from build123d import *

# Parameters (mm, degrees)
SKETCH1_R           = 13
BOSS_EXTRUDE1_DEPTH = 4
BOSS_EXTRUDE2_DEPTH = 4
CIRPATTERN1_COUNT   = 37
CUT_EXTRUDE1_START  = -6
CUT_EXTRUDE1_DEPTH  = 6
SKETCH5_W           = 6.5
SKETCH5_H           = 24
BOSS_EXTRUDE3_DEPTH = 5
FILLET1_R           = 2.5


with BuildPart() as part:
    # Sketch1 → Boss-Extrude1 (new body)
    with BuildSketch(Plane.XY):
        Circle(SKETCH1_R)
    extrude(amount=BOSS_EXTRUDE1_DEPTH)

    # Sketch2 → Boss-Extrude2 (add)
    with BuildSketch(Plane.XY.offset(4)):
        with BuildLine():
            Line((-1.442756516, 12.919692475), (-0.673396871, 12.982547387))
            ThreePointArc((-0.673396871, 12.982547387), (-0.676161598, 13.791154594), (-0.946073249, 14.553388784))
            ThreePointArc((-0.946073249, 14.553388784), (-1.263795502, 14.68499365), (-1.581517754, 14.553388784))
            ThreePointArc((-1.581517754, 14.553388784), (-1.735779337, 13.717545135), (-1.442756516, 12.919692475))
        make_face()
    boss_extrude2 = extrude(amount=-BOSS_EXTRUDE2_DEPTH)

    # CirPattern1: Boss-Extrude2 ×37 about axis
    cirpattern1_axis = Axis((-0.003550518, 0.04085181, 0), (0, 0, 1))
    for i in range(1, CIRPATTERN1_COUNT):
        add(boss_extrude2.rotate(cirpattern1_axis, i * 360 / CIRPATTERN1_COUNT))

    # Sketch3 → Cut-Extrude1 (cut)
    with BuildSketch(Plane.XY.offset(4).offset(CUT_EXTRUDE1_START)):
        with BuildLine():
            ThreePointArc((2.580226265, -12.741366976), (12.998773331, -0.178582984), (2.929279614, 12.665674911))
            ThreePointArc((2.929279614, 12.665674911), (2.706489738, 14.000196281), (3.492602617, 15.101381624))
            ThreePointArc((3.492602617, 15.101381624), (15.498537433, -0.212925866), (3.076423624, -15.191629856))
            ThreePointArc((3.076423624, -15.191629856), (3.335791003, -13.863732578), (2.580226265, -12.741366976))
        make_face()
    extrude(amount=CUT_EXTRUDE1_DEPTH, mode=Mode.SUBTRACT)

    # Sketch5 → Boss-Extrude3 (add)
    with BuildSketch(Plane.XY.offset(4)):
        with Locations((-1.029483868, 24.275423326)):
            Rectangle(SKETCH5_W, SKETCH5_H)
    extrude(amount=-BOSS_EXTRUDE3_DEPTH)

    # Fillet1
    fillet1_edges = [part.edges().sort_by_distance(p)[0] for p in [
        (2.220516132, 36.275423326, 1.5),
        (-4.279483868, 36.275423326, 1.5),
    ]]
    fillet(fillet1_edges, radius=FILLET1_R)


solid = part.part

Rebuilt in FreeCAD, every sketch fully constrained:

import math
import FreeCAD as App
import Part
import Sketcher

V = App.Vector
Q = App.Units.Quantity


def edges_at(feature, points):
    """Names of the edges that pass closest to the given points."""
    edges = feature.Shape.Edges
    near = lambda p: min(range(len(edges)), key=lambda i: edges[i].distToShape(Part.Vertex(*p))[0])
    return sorted({f"Edge{near(p) + 1}" for p in points})


def add_polygon(sketch, points):
    """Adds a closed chain of lines whose ends are joined by coincident constraints."""
    first, n = sketch.GeometryCount, len(points)
    for a, b in zip(points, points[1:] + points[:1]):
        sketch.addGeometry(Part.LineSegment(App.Vector(*a, 0), App.Vector(*b, 0)), False)
    for i in range(n):
        sketch.addConstraint(Sketcher.Constraint("Coincident", first + i, 2, first + (i + 1) % n, 1))

doc = App.newDocument("Part")
body = doc.addObject("PartDesign::Body", "Body")

sketch1 = doc.addObject("Sketcher::SketchObject", "Sketch")
body.addObject(sketch1)
sketch1.AttachmentSupport = (doc.XY_Plane, [""])
sketch1.MapMode = "FlatFace"
sketch1.addGeometry(Part.Circle(V(0, 0, 0), V(0, 0, 1), 13), False)
sketch1.addConstraint([
    Sketcher.Constraint("Coincident", 0, 3, -1, 1),
    Sketcher.Constraint("Diameter", 0, Q("26 mm")),
])
pad1 = doc.addObject("PartDesign::Pad", "Pad")
body.addObject(pad1)
pad1.Profile = sketch1
pad1.Length = 4

sketch2 = doc.addObject("Sketcher::SketchObject", "Sketch001")
body.addObject(sketch2)
sketch2.AttachmentSupport = (doc.XY_Plane, [""])
sketch2.MapMode = "FlatFace"
sketch2.AttachmentOffset = App.Placement(V(0, 0, 4), App.Rotation())
sketch2.addGeometry([
    Part.LineSegment(V(-1.442757, 12.919692, 0), V(-0.673397, 12.982547, 0)),
    Part.ArcOfCircle(Part.Circle(V(-3.052111, 13.378723, 0), V(0, 0, 1), 2.41148), math.radians(-9.455828), math.radians(29.151085)),
    Part.ArcOfCircle(Part.Circle(V(-1.263796, 14.235667, 0), V(0, 0, 1), 0.449327), math.radians(45), math.radians(135)),
    Part.ArcOfCircle(Part.Circle(V(-0.132198, 13.853748, 0), V(0, 0, 1), 1.609355), math.radians(154.231669), math.radians(215.478087)),
], False)
sketch2.addConstraint([
    Sketcher.Constraint("Coincident", 0, 2, 1, 1),
    Sketcher.Constraint("Coincident", 1, 2, 2, 1),
    Sketcher.Constraint("Coincident", 2, 2, 3, 1),
    Sketcher.Constraint("Coincident", 3, 2, 0, 1),
    Sketcher.Constraint("Radius", 1, Q("2.41148 mm")),
    Sketcher.Constraint("Radius", 2, Q("0.449327 mm")),
    Sketcher.Constraint("Radius", 3, Q("1.609355 mm")),
    Sketcher.Constraint("DistanceX", 3, 3, -1, 1, Q("0.132198 mm")),
    Sketcher.Constraint("DistanceX", 0, 2, 3, 3, Q("0.541198 mm")),
    Sketcher.Constraint("DistanceY", 0, 2, 3, 3, Q("0.871201 mm")),
    Sketcher.Constraint("DistanceX", 2, 3, 0, 2, Q("0.590399 mm")),
    Sketcher.Constraint("DistanceX", 1, 3, -1, 1, Q("3.052111 mm")),
    Sketcher.Constraint("DistanceY", -1, 1, 3, 3, Q("13.853748 mm")),
    Sketcher.Constraint("DistanceY", -1, 1, 1, 2, Q("14.553389 mm")),
    Sketcher.Constraint("DistanceX", 3, 2, 0, 2, Q("0.76936 mm")),
])
pad2 = doc.addObject("PartDesign::Pad", "Pad001")
body.addObject(pad2)
pad2.Profile = sketch2
pad2.Length = 4
pad2.Reversed = True
doc.recompute()

datumline = doc.addObject("PartDesign::Line", "DatumLine")
body.addObject(datumline)
datumline.Placement = App.Placement(V(-0.003551, 0.040852, 0), App.Rotation(V(0, 0, 1), V(0, 0, 1)))
polarpattern = doc.addObject("PartDesign::PolarPattern", "PolarPattern")
body.addObject(polarpattern)
polarpattern.Originals = [pad2]
polarpattern.Axis = (datumline, [""])
polarpattern.Angle = 360
polarpattern.Occurrences = 37
body.Tip = polarpattern

sketch3 = doc.addObject("Sketcher::SketchObject", "Sketch002")
body.addObject(sketch3)
sketch3.AttachmentSupport = (doc.XY_Plane, [""])
sketch3.MapMode = "FlatFace"
sketch3.AttachmentOffset = App.Placement(V(0, 0, -2), App.Rotation())
sketch3.addGeometry([
    Part.ArcOfCircle(Part.Circle(V(0, 0, 0), V(0, 0, 1), 13), math.radians(-79), math.radians(77)),
    Part.ArcOfCircle(Part.Circle(V(1.6, -14.2, 0), V(0, 0, 1), 1.8), math.radians(-34), math.radians(56)),
    Part.ArcOfCircle(Part.Circle(V(0, 0, 0), V(0, 0, 1), 15.5), math.radians(-79), math.radians(77)),
    Part.ArcOfCircle(Part.Circle(V(4.4, 13.6, 0), V(0, 0, 1), 1.8), math.radians(122), math.radians(212)),
], False)
sketch3.addConstraint([
    Sketcher.Constraint("Coincident", 0, 1, 1, 2),
    Sketcher.Constraint("Coincident", 1, 1, 2, 1),
    Sketcher.Constraint("Coincident", 2, 2, 3, 1),
    Sketcher.Constraint("Coincident", 3, 2, 0, 2),
    Sketcher.Constraint("Coincident", 0, 3, -1, 1),
    Sketcher.Constraint("Coincident", 2, 3, -1, 1),
    Sketcher.Constraint("Equal", 1, 3),
    Sketcher.Constraint("Radius", 0, Q("13 mm")),
    Sketcher.Constraint("Radius", 2, Q("15.5 mm")),
    Sketcher.Constraint("Radius", 1, Q("1.767767 mm")),
    Sketcher.Constraint("DistanceX", 1, 3, 3, 3, Q("2.825601 mm")),
    Sketcher.Constraint("DistanceY", 1, 1, -1, 1, Q("15.19163 mm")),
    Sketcher.Constraint("DistanceY", -1, 1, 2, 2, Q("15.101382 mm")),
    Sketcher.Constraint("DistanceX", -1, 1, 3, 2, Q("2.92928 mm")),
])
pocket1 = doc.addObject("PartDesign::Pocket", "Pocket")
body.addObject(pocket1)
pocket1.Profile = sketch3
pocket1.Length = 6
pocket1.Reversed = True

sketch4 = doc.addObject("Sketcher::SketchObject", "Sketch003")
body.addObject(sketch4)
sketch4.AttachmentSupport = (doc.XY_Plane, [""])
sketch4.MapMode = "FlatFace"
sketch4.AttachmentOffset = App.Placement(V(0, 0, 4), App.Rotation())
add_polygon(sketch4, [(-4, 36), (-4, 12), (2, 12), (2, 36)])
sketch4.addConstraint([
    Sketcher.Constraint("Vertical", 0),
    Sketcher.Constraint("Horizontal", 1),
    Sketcher.Constraint("Vertical", 2),
    Sketcher.Constraint("Horizontal", 3),
    Sketcher.Constraint("DistanceY", 0, 2, 0, 1, Q("24 mm")),
    Sketcher.Constraint("DistanceX", 1, 1, 1, 2, Q("6.5 mm")),
    Sketcher.Constraint("DistanceX", 0, 2, -1, 1, Q("4.279484 mm")),
    Sketcher.Constraint("DistanceY", -1, 1, 0, 2, Q("12.275423 mm")),
])
pad3 = doc.addObject("PartDesign::Pad", "Pad002")
body.addObject(pad3)
pad3.Profile = sketch4
pad3.Length = 5
pad3.Reversed = True
doc.recompute()

fillet = doc.addObject("PartDesign::Fillet", "Fillet")
body.addObject(fillet)
fillet.Base = (pad3, edges_at(pad3, [(2.221, 36.275, 1.5), (-4.279, 36.275, 1.5)]))
fillet.Radius = 2.5

doc.recompute()
